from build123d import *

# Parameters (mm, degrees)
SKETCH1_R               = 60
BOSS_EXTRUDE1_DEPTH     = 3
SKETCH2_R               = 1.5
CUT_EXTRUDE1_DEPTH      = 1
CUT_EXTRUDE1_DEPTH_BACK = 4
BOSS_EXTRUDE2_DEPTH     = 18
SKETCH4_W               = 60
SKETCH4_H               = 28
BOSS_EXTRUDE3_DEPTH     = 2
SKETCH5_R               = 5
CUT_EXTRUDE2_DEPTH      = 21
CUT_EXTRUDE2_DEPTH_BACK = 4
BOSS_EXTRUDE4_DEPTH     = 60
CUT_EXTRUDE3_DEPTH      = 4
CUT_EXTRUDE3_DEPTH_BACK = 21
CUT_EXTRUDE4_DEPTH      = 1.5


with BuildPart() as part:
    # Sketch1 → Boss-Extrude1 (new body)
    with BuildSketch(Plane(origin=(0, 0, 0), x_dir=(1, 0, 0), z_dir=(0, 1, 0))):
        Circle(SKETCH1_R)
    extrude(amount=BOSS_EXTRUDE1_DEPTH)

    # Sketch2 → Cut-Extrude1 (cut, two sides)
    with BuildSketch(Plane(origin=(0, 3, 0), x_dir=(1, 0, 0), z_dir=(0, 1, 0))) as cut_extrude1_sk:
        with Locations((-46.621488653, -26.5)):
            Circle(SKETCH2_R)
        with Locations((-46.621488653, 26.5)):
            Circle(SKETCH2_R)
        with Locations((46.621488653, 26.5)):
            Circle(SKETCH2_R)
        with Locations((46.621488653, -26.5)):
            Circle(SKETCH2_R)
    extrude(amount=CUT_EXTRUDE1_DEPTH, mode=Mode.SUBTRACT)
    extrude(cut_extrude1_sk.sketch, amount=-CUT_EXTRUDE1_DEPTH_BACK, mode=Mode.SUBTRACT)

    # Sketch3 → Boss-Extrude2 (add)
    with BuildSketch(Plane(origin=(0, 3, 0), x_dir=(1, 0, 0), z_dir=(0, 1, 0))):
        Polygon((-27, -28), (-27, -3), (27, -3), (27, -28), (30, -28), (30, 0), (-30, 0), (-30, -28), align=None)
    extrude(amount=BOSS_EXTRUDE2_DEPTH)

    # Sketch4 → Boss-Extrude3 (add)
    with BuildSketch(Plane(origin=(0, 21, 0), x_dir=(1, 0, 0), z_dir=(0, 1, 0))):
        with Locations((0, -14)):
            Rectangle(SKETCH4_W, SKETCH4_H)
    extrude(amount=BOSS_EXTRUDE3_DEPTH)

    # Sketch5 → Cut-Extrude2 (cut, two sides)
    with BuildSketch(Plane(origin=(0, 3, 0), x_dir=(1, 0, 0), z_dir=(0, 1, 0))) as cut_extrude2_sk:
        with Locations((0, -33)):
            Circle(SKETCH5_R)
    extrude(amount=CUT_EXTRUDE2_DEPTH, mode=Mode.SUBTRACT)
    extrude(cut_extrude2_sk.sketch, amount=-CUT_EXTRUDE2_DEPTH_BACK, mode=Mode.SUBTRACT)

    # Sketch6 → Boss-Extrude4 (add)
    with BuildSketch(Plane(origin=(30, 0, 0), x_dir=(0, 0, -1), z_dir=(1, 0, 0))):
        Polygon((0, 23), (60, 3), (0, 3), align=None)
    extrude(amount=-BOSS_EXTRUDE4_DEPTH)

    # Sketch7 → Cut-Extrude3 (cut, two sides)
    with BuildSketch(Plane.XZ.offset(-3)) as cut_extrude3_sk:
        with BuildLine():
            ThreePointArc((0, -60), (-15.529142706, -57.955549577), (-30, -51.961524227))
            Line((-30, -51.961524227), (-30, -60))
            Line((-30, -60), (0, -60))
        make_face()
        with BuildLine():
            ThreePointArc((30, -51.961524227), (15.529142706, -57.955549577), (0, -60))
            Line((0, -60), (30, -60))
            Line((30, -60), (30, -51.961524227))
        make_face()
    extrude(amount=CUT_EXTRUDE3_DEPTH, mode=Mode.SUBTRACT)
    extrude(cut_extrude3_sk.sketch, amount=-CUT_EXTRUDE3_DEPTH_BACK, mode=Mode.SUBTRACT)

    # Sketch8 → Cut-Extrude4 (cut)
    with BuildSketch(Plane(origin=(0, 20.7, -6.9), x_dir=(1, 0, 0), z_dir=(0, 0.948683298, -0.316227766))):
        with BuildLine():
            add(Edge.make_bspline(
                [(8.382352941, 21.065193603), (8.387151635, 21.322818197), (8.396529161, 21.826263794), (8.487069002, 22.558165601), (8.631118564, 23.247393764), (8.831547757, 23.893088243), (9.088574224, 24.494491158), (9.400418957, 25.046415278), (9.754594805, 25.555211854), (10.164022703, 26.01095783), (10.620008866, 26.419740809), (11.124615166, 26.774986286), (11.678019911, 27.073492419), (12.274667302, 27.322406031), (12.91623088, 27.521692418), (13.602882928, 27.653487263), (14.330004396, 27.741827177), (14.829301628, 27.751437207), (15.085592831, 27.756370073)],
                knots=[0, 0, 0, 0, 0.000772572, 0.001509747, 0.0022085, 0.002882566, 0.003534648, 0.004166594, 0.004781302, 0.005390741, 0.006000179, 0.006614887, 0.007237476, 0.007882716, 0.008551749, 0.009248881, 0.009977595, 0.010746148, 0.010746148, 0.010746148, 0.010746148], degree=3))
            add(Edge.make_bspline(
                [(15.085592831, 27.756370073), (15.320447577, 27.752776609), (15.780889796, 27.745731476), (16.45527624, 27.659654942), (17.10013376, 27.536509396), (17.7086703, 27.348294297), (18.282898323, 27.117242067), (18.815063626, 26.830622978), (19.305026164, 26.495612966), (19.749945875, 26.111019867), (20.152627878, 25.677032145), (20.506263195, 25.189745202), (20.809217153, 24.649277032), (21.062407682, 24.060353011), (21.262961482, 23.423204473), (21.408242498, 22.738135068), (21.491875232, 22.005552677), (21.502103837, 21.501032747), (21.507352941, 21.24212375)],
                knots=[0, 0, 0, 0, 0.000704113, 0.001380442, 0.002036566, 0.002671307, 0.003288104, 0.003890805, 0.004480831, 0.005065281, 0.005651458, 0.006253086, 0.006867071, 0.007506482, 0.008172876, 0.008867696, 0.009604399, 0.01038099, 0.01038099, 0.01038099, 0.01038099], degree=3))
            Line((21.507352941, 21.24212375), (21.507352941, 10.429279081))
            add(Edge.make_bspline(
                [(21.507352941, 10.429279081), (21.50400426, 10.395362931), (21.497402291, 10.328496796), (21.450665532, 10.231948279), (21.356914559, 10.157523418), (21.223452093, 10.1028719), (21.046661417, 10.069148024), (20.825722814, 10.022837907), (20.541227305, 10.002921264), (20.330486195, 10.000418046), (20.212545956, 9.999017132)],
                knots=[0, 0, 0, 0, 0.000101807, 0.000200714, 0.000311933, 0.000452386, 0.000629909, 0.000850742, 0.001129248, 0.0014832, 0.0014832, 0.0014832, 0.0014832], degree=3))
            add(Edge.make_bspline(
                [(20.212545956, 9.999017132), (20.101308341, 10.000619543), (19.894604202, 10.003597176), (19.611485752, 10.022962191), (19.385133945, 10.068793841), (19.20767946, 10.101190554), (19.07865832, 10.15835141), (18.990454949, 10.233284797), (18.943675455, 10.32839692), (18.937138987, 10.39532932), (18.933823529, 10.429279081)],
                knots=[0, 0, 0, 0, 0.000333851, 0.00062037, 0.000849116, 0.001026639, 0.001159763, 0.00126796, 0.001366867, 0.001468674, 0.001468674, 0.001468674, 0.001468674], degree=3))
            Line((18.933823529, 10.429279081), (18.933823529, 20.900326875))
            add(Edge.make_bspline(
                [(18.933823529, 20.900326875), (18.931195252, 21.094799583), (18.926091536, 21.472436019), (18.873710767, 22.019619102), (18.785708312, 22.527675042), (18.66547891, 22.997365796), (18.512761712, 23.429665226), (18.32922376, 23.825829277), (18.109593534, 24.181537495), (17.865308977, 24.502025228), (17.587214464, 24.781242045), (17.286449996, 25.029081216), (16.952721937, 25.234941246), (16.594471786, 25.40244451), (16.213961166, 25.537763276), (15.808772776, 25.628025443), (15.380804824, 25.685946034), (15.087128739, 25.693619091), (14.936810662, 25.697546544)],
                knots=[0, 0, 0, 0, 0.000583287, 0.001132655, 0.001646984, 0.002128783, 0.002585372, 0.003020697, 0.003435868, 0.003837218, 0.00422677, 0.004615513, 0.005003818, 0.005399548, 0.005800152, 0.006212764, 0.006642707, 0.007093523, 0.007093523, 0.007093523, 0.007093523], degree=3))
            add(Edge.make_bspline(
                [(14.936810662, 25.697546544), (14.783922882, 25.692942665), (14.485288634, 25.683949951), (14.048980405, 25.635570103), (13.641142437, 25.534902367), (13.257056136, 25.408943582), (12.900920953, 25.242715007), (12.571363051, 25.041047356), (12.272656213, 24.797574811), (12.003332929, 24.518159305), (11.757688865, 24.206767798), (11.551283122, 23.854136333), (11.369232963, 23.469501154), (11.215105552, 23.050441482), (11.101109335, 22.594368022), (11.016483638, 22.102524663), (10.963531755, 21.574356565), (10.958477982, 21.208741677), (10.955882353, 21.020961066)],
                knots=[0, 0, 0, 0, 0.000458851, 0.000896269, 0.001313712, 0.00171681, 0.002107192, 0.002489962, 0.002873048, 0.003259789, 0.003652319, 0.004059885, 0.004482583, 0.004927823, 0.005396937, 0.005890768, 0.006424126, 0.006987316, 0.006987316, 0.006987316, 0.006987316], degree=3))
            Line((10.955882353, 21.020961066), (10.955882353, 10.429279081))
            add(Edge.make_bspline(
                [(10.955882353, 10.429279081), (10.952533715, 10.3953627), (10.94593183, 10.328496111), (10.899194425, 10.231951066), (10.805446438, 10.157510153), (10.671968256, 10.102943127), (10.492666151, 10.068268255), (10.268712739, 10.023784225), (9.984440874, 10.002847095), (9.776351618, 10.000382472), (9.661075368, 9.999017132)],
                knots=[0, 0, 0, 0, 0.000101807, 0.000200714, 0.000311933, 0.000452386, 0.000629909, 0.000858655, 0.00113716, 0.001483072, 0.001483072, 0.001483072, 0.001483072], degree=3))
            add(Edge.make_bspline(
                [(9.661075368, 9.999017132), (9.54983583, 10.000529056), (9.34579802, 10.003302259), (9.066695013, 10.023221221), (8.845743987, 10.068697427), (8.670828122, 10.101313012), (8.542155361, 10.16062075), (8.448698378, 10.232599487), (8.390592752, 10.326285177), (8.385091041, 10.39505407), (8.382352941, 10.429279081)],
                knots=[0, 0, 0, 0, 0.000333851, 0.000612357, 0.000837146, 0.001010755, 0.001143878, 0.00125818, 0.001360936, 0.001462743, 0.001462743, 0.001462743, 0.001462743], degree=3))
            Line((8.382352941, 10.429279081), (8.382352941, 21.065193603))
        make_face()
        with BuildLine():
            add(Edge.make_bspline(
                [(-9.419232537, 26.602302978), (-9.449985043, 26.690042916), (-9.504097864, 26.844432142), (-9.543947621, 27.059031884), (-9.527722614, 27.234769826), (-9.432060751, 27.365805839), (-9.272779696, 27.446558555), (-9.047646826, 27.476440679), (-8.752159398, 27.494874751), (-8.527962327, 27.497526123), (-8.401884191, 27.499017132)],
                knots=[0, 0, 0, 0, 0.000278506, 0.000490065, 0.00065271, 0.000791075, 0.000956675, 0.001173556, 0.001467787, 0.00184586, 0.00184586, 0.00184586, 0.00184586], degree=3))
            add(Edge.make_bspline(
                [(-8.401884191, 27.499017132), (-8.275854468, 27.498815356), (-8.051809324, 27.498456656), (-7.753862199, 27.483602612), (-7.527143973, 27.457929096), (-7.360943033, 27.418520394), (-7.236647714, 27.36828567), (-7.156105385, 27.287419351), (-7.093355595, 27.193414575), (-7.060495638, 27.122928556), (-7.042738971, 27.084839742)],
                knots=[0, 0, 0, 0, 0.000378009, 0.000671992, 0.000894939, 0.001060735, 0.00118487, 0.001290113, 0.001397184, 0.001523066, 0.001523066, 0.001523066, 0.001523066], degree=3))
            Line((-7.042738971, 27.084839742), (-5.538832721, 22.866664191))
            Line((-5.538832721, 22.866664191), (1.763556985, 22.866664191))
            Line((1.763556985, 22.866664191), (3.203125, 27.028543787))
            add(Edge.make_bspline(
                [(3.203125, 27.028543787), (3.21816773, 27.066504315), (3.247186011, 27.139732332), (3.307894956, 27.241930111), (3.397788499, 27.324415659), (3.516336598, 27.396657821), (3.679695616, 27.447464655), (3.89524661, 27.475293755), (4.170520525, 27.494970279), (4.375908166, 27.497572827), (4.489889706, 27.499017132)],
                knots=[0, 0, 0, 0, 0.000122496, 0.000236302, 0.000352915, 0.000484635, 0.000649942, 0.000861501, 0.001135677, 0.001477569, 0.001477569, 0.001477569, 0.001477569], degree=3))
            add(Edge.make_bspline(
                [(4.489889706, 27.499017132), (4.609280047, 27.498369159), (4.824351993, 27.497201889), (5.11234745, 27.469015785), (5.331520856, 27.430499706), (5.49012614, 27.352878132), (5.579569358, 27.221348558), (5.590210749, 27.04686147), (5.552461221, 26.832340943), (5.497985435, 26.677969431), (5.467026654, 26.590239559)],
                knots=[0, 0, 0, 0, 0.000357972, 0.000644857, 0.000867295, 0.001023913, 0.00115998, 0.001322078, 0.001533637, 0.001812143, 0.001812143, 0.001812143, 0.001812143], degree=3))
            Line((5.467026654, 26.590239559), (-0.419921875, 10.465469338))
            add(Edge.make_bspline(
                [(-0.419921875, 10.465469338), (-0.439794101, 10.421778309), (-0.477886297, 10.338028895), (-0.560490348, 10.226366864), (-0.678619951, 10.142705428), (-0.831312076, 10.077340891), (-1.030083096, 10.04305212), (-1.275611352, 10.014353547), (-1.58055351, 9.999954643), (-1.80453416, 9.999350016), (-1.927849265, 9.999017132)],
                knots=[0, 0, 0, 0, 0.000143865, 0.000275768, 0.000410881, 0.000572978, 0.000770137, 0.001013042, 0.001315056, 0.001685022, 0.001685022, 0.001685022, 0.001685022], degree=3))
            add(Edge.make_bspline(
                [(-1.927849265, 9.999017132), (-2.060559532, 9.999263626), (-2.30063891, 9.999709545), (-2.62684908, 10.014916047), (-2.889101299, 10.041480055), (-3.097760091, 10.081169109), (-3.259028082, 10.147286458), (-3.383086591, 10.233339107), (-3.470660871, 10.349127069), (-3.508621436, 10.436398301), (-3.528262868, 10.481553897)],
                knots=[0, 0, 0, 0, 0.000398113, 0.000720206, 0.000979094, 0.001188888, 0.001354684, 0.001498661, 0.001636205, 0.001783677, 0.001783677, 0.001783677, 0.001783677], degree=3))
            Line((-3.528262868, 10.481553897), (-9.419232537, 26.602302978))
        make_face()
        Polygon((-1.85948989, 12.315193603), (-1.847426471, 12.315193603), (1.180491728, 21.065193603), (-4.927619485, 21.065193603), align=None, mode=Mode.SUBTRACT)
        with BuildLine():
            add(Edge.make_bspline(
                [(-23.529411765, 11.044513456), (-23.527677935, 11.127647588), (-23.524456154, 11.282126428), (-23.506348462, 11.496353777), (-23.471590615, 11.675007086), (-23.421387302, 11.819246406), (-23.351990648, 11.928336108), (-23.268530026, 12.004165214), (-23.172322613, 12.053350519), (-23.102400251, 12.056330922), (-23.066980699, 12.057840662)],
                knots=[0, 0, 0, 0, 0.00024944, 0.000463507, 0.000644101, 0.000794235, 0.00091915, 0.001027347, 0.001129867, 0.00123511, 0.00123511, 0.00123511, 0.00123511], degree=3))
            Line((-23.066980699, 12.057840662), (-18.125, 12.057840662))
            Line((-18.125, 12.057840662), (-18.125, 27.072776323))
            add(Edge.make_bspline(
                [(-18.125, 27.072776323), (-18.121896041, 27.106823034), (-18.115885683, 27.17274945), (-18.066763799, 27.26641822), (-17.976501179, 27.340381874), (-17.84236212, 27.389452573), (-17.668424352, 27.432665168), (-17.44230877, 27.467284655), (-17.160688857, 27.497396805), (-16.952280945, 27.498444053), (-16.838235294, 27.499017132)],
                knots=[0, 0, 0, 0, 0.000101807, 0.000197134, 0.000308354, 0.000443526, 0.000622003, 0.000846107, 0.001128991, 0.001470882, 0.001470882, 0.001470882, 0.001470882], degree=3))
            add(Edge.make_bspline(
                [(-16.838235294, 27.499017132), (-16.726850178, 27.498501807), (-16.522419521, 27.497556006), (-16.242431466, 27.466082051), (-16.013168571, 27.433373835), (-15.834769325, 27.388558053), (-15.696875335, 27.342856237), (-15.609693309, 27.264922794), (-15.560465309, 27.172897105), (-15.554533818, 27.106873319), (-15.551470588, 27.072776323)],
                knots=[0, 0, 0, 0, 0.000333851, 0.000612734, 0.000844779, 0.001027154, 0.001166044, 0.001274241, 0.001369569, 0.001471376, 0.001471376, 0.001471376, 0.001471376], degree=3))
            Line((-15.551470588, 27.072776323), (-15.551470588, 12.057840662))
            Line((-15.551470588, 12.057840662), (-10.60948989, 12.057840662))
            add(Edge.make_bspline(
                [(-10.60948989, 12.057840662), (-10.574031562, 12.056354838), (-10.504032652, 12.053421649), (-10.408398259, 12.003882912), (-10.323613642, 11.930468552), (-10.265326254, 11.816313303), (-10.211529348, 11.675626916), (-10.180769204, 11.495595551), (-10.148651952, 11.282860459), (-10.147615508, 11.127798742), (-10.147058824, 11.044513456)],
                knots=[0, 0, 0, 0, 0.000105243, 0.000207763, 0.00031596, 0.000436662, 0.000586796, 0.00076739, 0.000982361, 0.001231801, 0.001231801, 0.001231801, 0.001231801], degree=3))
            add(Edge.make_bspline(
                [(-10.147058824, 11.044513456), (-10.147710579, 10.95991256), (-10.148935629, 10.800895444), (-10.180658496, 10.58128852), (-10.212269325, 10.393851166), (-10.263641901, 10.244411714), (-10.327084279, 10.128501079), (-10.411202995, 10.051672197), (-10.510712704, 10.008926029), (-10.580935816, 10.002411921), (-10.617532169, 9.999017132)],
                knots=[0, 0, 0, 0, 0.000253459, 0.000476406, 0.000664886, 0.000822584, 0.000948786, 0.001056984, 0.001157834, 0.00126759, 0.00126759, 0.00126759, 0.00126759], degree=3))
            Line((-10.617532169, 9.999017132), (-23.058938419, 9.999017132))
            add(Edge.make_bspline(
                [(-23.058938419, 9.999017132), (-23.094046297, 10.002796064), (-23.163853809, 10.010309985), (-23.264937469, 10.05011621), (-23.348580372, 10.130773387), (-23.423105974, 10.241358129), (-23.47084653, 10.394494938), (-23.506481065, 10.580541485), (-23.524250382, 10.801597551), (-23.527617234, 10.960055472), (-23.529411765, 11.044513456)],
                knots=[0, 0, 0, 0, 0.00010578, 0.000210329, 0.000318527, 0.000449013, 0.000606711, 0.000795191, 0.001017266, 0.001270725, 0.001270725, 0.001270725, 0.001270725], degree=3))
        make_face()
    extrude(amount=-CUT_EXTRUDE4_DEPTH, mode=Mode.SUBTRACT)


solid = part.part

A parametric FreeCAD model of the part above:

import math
import FreeCAD as App
import Part
import Sketcher
Q = App.Units.Quantity


def add_polygon(sketch, points):
    """Adds a closed chain of lines whose ends are joined by coincident constraints."""
    first, n = sketch.GeometryCount, len(points)
    for a, b in zip(points, points[1:] + points[:1]):
        sketch.addGeometry(Part.LineSegment(App.Vector(*a, 0), App.Vector(*b, 0)), False)
    for i in range(n):
        sketch.addConstraint(Sketcher.Constraint("Coincident", first + i, 2, first + (i + 1) % n, 1))

doc = App.newDocument("Part")
body = doc.addObject("PartDesign::Body", "Body")

sketch1 = doc.addObject("Sketcher::SketchObject", "Sketch")
body.addObject(sketch1)
sketch1.AttachmentSupport = (doc.XZ_Plane, [""])
sketch1.MapMode = "FlatFace"
sketch1.addGeometry(Part.Circle(App.Vector(0, 0, 0), App.Vector(0, 0, 1), 60), False)
sketch1.addConstraint([
    Sketcher.Constraint("Coincident", 0, 3, -1, 1),
    Sketcher.Constraint("Diameter", 0, Q("120 mm")),
])
pad1 = doc.addObject("PartDesign::Pad", "Pad")
body.addObject(pad1)
pad1.Profile = sketch1
pad1.Length = 3
pad1.Reversed = True

sketch2 = doc.addObject("Sketcher::SketchObject", "Sketch001")
body.addObject(sketch2)
sketch2.AttachmentSupport = (doc.XZ_Plane, [""])
sketch2.MapMode = "FlatFace"
sketch2.AttachmentOffset = App.Placement(App.Vector(0, 0, -3), App.Rotation())
sketch2.addGeometry([
    Part.Circle(App.Vector(-46.6, 26.5, 0), App.Vector(0, 0, 1), 1.5),
    Part.Circle(App.Vector(-46.6, -26.5, 0), App.Vector(0, 0, 1), 1.5),
    Part.Circle(App.Vector(46.6, -26.5, 0), App.Vector(0, 0, 1), 1.5),
    Part.Circle(App.Vector(46.6, 26.5, 0), App.Vector(0, 0, 1), 1.5),
], False)
sketch2.addConstraint([
    Sketcher.Constraint("Equal", 0, 1),
    Sketcher.Constraint("Equal", 1, 2),
    Sketcher.Constraint("Equal", 2, 3),
    Sketcher.Constraint("Symmetric", 0, 3, 2, 3, -1, 1),
    Sketcher.Constraint("Symmetric", 1, 3, 3, 3, -1, 1),
    Sketcher.Constraint("Symmetric", 1, 3, 2, 3, -2),
    Sketcher.Constraint("Diameter", 0, Q("3 mm")),
    Sketcher.Constraint("DistanceY", 1, 3, 0, 3, Q("53 mm")),
    Sketcher.Constraint("DistanceX", 0, 3, -1, 1, Q("46.621489 mm")),
])
pocket1 = doc.addObject("PartDesign::Pocket", "Pocket")
body.addObject(pocket1)
pocket1.Profile = sketch2
pocket1.Type = "ThroughAll"
pocket1.Midplane = True

sketch3 = doc.addObject("Sketcher::SketchObject", "Sketch002")
body.addObject(sketch3)
sketch3.AttachmentSupport = (doc.XZ_Plane, [""])
sketch3.MapMode = "FlatFace"
sketch3.AttachmentOffset = App.Placement(App.Vector(0, 0, -3), App.Rotation())
add_polygon(sketch3, [(-27, 28), (-27, 3), (27, 3), (27, 28), (30, 28), (30, 0), (-30, 0), (-30, 28)])
sketch3.addConstraint([
    Sketcher.Constraint("Vertical", 0),
    Sketcher.Constraint("Horizontal", 1),
    Sketcher.Constraint("Vertical", 2),
    Sketcher.Constraint("Horizontal", 3),
    Sketcher.Constraint("Vertical", 4),
    Sketcher.Constraint("Horizontal", 5),
    Sketcher.Constraint("Vertical", 6),
    Sketcher.Constraint("Horizontal", 7),
    Sketcher.Constraint("Symmetric", 4, 2, 5, 2, -1, 1),
    Sketcher.Constraint("Symmetric", 2, 2, 7, 2, -2),
    Sketcher.Constraint("DistanceX", 1, 1, 1, 2, Q("54 mm")),
    Sketcher.Constraint("DistanceX", 3, 1, 3, 2, Q("3 mm")),
    Sketcher.Constraint("DistanceY", 0, 2, 0, 1, Q("25 mm")),
    Sketcher.Constraint("DistanceY", 4, 2, 4, 1, Q("28 mm")),
])
pad2 = doc.addObject("PartDesign::Pad", "Pad001")
body.addObject(pad2)
pad2.Profile = sketch3
pad2.Length = 18
pad2.Reversed = True

sketch4 = doc.addObject("Sketcher::SketchObject", "Sketch003")
body.addObject(sketch4)
sketch4.AttachmentSupport = (doc.XZ_Plane, [""])
sketch4.MapMode = "FlatFace"
sketch4.AttachmentOffset = App.Placement(App.Vector(0, 0, -21), App.Rotation())
add_polygon(sketch4, [(-30, 0), (-30, 28), (30, 28), (30, 0)])
sketch4.addConstraint([
    Sketcher.Constraint("Vertical", 0),
    Sketcher.Constraint("Horizontal", 1),
    Sketcher.Constraint("Vertical", 2),
    Sketcher.Constraint("Horizontal", 3),
    Sketcher.Constraint("Symmetric", 2, 2, 3, 2, -1, 1),
    Sketcher.Constraint("DistanceX", 1, 1, 1, 2, Q("60 mm")),
    Sketcher.Constraint("DistanceY", 0, 1, 0, 2, Q("28 mm")),
])
pad3 = doc.addObject("PartDesign::Pad", "Pad002")
body.addObject(pad3)
pad3.Profile = sketch4
pad3.Length = 2
pad3.Reversed = True

sketch5 = doc.addObject("Sketcher::SketchObject", "Sketch004")
body.addObject(sketch5)
sketch5.AttachmentSupport = (doc.XZ_Plane, [""])
sketch5.MapMode = "FlatFace"
sketch5.AttachmentOffset = App.Placement(App.Vector(0, 0, -3), App.Rotation())
sketch5.addGeometry(Part.Circle(App.Vector(0, 33, 0), App.Vector(0, 0, 1), 5), False)
sketch5.addConstraint([
    Sketcher.Constraint("PointOnObject", 0, 3, -2),
    Sketcher.Constraint("Diameter", 0, Q("10 mm")),
    Sketcher.Constraint("DistanceY", -1, 1, 0, 3, Q("33 mm")),
])
pocket2 = doc.addObject("PartDesign::Pocket", "Pocket001")
body.addObject(pocket2)
pocket2.Profile = sketch5
pocket2.Type = "ThroughAll"
pocket2.Midplane = True

sketch6 = doc.addObject("Sketcher::SketchObject", "Sketch005")
body.addObject(sketch6)
sketch6.AttachmentSupport = (doc.YZ_Plane, [""])
sketch6.MapMode = "FlatFace"
sketch6.AttachmentOffset = App.Placement(App.Vector(0, 0, 30), App.Rotation())
add_polygon(sketch6, [(3, -60), (23, 0), (3, 0)])
sketch6.addConstraint([
    Sketcher.Constraint("Horizontal", 1),
    Sketcher.Constraint("Vertical", 2),
    Sketcher.Constraint("PointOnObject", 0, 2, -1),
    Sketcher.Constraint("DistanceX", 1, 2, 1, 1, Q("20 mm")),
    Sketcher.Constraint("DistanceY", 2, 2, 2, 1, Q("60 mm")),
    Sketcher.Constraint("DistanceX", -1, 1, 0, 2, Q("23 mm")),
])
pad4 = doc.addObject("PartDesign::Pad", "Pad003")
body.addObject(pad4)
pad4.Profile = sketch6
pad4.Length = 60
pad4.Reversed = True

sketch7 = doc.addObject("Sketcher::SketchObject", "Sketch006")
body.addObject(sketch7)
sketch7.AttachmentSupport = (doc.XZ_Plane, [""])
sketch7.MapMode = "FlatFace"
sketch7.AttachmentOffset = App.Placement(App.Vector(0, 0, -3), App.Rotation())
sketch7.addGeometry([
    Part.ArcOfCircle(Part.Circle(App.Vector(0, 0, 0), App.Vector(0, 0, 1), 60), math.radians(-120), math.radians(-90)),
    Part.LineSegment(App.Vector(-30, -52, 0), App.Vector(-30, -60, 0)),
    Part.LineSegment(App.Vector(-30, -60, 0), App.Vector(0, -60, 0)),
    Part.ArcOfCircle(Part.Circle(App.Vector(0, 0, 0), App.Vector(0, 0, 1), 60), math.radians(-90), math.radians(-60)),
    Part.LineSegment(App.Vector(0, -60, 0), App.Vector(30, -60, 0)),
    Part.LineSegment(App.Vector(30, -60, 0), App.Vector(30, -52, 0)),
], False)
sketch7.addConstraint([
    Sketcher.Constraint("Coincident", 0, 1, 1, 1),
    Sketcher.Constraint("Coincident", 1, 2, 2, 1),
    Sketcher.Constraint("Tangent", 2, 2, 0, 2),
    Sketcher.Constraint("Tangent", 3, 1, 4, 1),
    Sketcher.Constraint("Coincident", 4, 2, 5, 1),
    Sketcher.Constraint("Coincident", 5, 2, 3, 2),
    Sketcher.Constraint("Vertical", 1),
    Sketcher.Constraint("Horizontal", 2),
    Sketcher.Constraint("Horizontal", 4),
    Sketcher.Constraint("Vertical", 5),
    Sketcher.Constraint("Coincident", 0, 3, -1, 1),
    Sketcher.Constraint("Coincident", 3, 3, -1, 1),
    Sketcher.Constraint("Equal", 0, 3),
    Sketcher.Constraint("Horizontal", 0, 1, 5, 2),
    Sketcher.Constraint("Radius", 0, Q("60 mm")),
    Sketcher.Constraint("DistanceX", 2, 1, 2, 2, Q("30 mm")),
])
pocket3 = doc.addObject("PartDesign::Pocket", "Pocket002")
body.addObject(pocket3)
pocket3.Profile = sketch7
pocket3.Type = "ThroughAll"
pocket3.Midplane = True

sketch8 = doc.addObject("Sketcher::SketchObject", "Sketch007")
body.addObject(sketch8)
sketch8.Placement = App.Placement(App.Vector(0, 20.7, -6.9), App.Rotation(App.Vector(1, 0, 0), App.Vector(0, -0.316227766, -0.948683298), App.Vector(0, 0.948683298, -0.316227766), "ZXY"))
sketch8.addGeometry(Part.BSplineCurve([App.Vector(8.382353, 21.065194, 0), App.Vector(8.387152, 21.322818, 0), App.Vector(8.396529, 21.826264, 0), App.Vector(8.487069, 22.558166, 0), App.Vector(8.631119, 23.247394, 0), App.Vector(8.831548, 23.893088, 0), App.Vector(9.088574, 24.494491, 0), App.Vector(9.400419, 25.046415, 0), App.Vector(9.754595, 25.555212, 0), App.Vector(10.164023, 26.010958, 0), App.Vector(10.620009, 26.419741, 0), App.Vector(11.124615, 26.774986, 0), App.Vector(11.67802, 27.073492, 0), App.Vector(12.274667, 27.322406, 0), App.Vector(12.916231, 27.521692, 0), App.Vector(13.602883, 27.653487, 0), App.Vector(14.330004, 27.741827, 0), App.Vector(14.829302, 27.751437, 0), App.Vector(15.085593, 27.75637, 0)], [4, 1, 1, 1, 1, 1, 1, 1, 1, 1, 1, 1, 1, 1, 1, 1, 4], [0, 0.000772572, 0.001509747, 0.0022085, 0.002882566, 0.003534648, 0.004166594, 0.004781302, 0.005390741, 0.006000179, 0.006614887, 0.007237476, 0.007882716, 0.008551749, 0.009248881, 0.009977595, 0.010746148], False, 3, [1, 1, 1, 1, 1, 1, 1, 1, 1, 1, 1, 1, 1, 1, 1, 1, 1, 1, 1], False), False)
sketch8.addGeometry(Part.LineSegment(App.Vector(8.382353, 21.065194, 0), App.Vector(8.382353, 10.429279, 0)), False)
sketch8.addGeometry(Part.BSplineCurve([App.Vector(9.661075, 9.999017, 0), App.Vector(9.549836, 10.000529, 0), App.Vector(9.345798, 10.003302, 0), App.Vector(9.066695, 10.023221, 0), App.Vector(8.845744, 10.068697, 0), App.Vector(8.670828, 10.101313, 0), App.Vector(8.542155, 10.160621, 0), App.Vector(8.448698, 10.232599, 0), App.Vector(8.390593, 10.326285, 0), App.Vector(8.385091, 10.395054, 0), App.Vector(8.382353, 10.429279, 0)], [4, 1, 1, 1, 1, 1, 1, 1, 4], [0, 0.000333851, 0.000612357, 0.000837146, 0.001010755, 0.001143878, 0.00125818, 0.001360936, 0.001462743], False, 3, [1, 1, 1, 1, 1, 1, 1, 1, 1, 1, 1], False), False)
sketch8.addGeometry(Part.BSplineCurve([App.Vector(10.955882, 10.429279, 0), App.Vector(10.952534, 10.395363, 0), App.Vector(10.945932, 10.328496, 0), App.Vector(10.899194, 10.231951, 0), App.Vector(10.805446, 10.15751, 0), App.Vector(10.671968, 10.102943, 0), App.Vector(10.492666, 10.068268, 0), App.Vector(10.268713, 10.023784, 0), App.Vector(9.984441, 10.002847, 0), App.Vector(9.776352, 10.000382, 0), App.Vector(9.661075, 9.999017, 0)], [4, 1, 1, 1, 1, 1, 1, 1, 4], [0, 0.000101807, 0.000200714, 0.000311933, 0.000452386, 0.000629909, 0.000858655, 0.00113716, 0.001483072], False, 3, [1, 1, 1, 1, 1, 1, 1, 1, 1, 1, 1], False), False)
sketch8.addGeometry(Part.LineSegment(App.Vector(10.955882, 10.429279, 0), App.Vector(10.955882, 21.020961, 0)), False)
sketch8.addGeometry(Part.BSplineCurve([App.Vector(14.936811, 25.697547, 0), App.Vector(14.783923, 25.692943, 0), App.Vector(14.485289, 25.68395, 0), App.Vector(14.04898, 25.63557, 0), App.Vector(13.641142, 25.534902, 0), App.Vector(13.257056, 25.408944, 0), App.Vector(12.900921, 25.242715, 0), App.Vector(12.571363, 25.041047, 0), App.Vector(12.272656, 24.797575, 0), App.Vector(12.003333, 24.518159, 0), App.Vector(11.757689, 24.206768, 0), App.Vector(11.551283, 23.854136, 0), App.Vector(11.369233, 23.469501, 0), App.Vector(11.215106, 23.050441, 0), App.Vector(11.101109, 22.594368, 0), App.Vector(11.016484, 22.102525, 0), App.Vector(10.963532, 21.574357, 0), App.Vector(10.958478, 21.208742, 0), App.Vector(10.955882, 21.020961, 0)], [4, 1, 1, 1, 1, 1, 1, 1, 1, 1, 1, 1, 1, 1, 1, 1, 4], [0, 0.000458851, 0.000896269, 0.001313712, 0.00171681, 0.002107192, 0.002489962, 0.002873048, 0.003259789, 0.003652319, 0.004059885, 0.004482583, 0.004927823, 0.005396937, 0.005890768, 0.006424126, 0.006987316], False, 3, [1, 1, 1, 1, 1, 1, 1, 1, 1, 1, 1, 1, 1, 1, 1, 1, 1, 1, 1], False), False)
sketch8.addGeometry(Part.BSplineCurve([App.Vector(18.933824, 20.900327, 0), App.Vector(18.931195, 21.0948, 0), App.Vector(18.926092, 21.472436, 0), App.Vector(18.873711, 22.019619, 0), App.Vector(18.785708, 22.527675, 0), App.Vector(18.665479, 22.997366, 0), App.Vector(18.512762, 23.429665, 0), App.Vector(18.329224, 23.825829, 0), App.Vector(18.109594, 24.181537, 0), App.Vector(17.865309, 24.502025, 0), App.Vector(17.587214, 24.781242, 0), App.Vector(17.28645, 25.029081, 0), App.Vector(16.952722, 25.234941, 0), App.Vector(16.594472, 25.402445, 0), App.Vector(16.213961, 25.537763, 0), App.Vector(15.808773, 25.628025, 0), App.Vector(15.380805, 25.685946, 0), App.Vector(15.087129, 25.693619, 0), App.Vector(14.936811, 25.697547, 0)], [4, 1, 1, 1, 1, 1, 1, 1, 1, 1, 1, 1, 1, 1, 1, 1, 4], [0, 0.000583287, 0.001132655, 0.001646984, 0.002128783, 0.002585372, 0.003020697, 0.003435868, 0.003837218, 0.00422677, 0.004615513, 0.005003818, 0.005399548, 0.005800152, 0.006212764, 0.006642707, 0.007093523], False, 3, [1, 1, 1, 1, 1, 1, 1, 1, 1, 1, 1, 1, 1, 1, 1, 1, 1, 1, 1], False), False)
sketch8.addGeometry(Part.LineSegment(App.Vector(18.933824, 20.900327, 0), App.Vector(18.933824, 10.429279, 0)), False)
sketch8.addGeometry(Part.BSplineCurve([App.Vector(20.212546, 9.999017, 0), App.Vector(20.101308, 10.00062, 0), App.Vector(19.894604, 10.003597, 0), App.Vector(19.611486, 10.022962, 0), App.Vector(19.385134, 10.068794, 0), App.Vector(19.207679, 10.101191, 0), App.Vector(19.078658, 10.158351, 0), App.Vector(18.990455, 10.233285, 0), App.Vector(18.943675, 10.328397, 0), App.Vector(18.937139, 10.395329, 0), App.Vector(18.933824, 10.429279, 0)], [4, 1, 1, 1, 1, 1, 1, 1, 4], [0, 0.000333851, 0.00062037, 0.000849116, 0.001026639, 0.001159763, 0.00126796, 0.001366867, 0.001468674], False, 3, [1, 1, 1, 1, 1, 1, 1, 1, 1, 1, 1], False), False)
sketch8.addGeometry(Part.BSplineCurve([App.Vector(21.507353, 10.429279, 0), App.Vector(21.504004, 10.395363, 0), App.Vector(21.497402, 10.328497, 0), App.Vector(21.450666, 10.231948, 0), App.Vector(21.356915, 10.157523, 0), App.Vector(21.223452, 10.102872, 0), App.Vector(21.046661, 10.069148, 0), App.Vector(20.825723, 10.022838, 0), App.Vector(20.541227, 10.002921, 0), App.Vector(20.330486, 10.000418, 0), App.Vector(20.212546, 9.999017, 0)], [4, 1, 1, 1, 1, 1, 1, 1, 4], [0, 0.000101807, 0.000200714, 0.000311933, 0.000452386, 0.000629909, 0.000850742, 0.001129248, 0.0014832], False, 3, [1, 1, 1, 1, 1, 1, 1, 1, 1, 1, 1], False), False)
sketch8.addGeometry(Part.LineSegment(App.Vector(21.507353, 10.429279, 0), App.Vector(21.507353, 21.242124, 0)), False)
sketch8.addGeometry(Part.BSplineCurve([App.Vector(15.085593, 27.75637, 0), App.Vector(15.320448, 27.752777, 0), App.Vector(15.78089, 27.745731, 0), App.Vector(16.455276, 27.659655, 0), App.Vector(17.100134, 27.536509, 0), App.Vector(17.70867, 27.348294, 0), App.Vector(18.282898, 27.117242, 0), App.Vector(18.815064, 26.830623, 0), App.Vector(19.305026, 26.495613, 0), App.Vector(19.749946, 26.11102, 0), App.Vector(20.152628, 25.677032, 0), App.Vector(20.506263, 25.189745, 0), App.Vector(20.809217, 24.649277, 0), App.Vector(21.062408, 24.060353, 0), App.Vector(21.262961, 23.423204, 0), App.Vector(21.408242, 22.738135, 0), App.Vector(21.491875, 22.005553, 0), App.Vector(21.502104, 21.501033, 0), App.Vector(21.507353, 21.242124, 0)], [4, 1, 1, 1, 1, 1, 1, 1, 1, 1, 1, 1, 1, 1, 1, 1, 4], [0, 0.000704113, 0.001380442, 0.002036566, 0.002671307, 0.003288104, 0.003890805, 0.004480831, 0.005065281, 0.005651458, 0.006253086, 0.006867071, 0.007506482, 0.008172876, 0.008867696, 0.009604399, 0.01038099], False, 3, [1, 1, 1, 1, 1, 1, 1, 1, 1, 1, 1, 1, 1, 1, 1, 1, 1, 1, 1], False), False)
sketch8.addGeometry(Part.BSplineCurve([App.Vector(-9.419233, 26.602303, 0), App.Vector(-9.449985, 26.690043, 0), App.Vector(-9.504098, 26.844432, 0), App.Vector(-9.543948, 27.059032, 0), App.Vector(-9.527723, 27.23477, 0), App.Vector(-9.432061, 27.365806, 0), App.Vector(-9.27278, 27.446559, 0), App.Vector(-9.047647, 27.476441, 0), App.Vector(-8.752159, 27.494875, 0), App.Vector(-8.527962, 27.497526, 0), App.Vector(-8.401884, 27.499017, 0)], [4, 1, 1, 1, 1, 1, 1, 1, 4], [0, 0.000278506, 0.000490065, 0.00065271, 0.000791075, 0.000956675, 0.001173556, 0.001467787, 0.00184586], False, 3, [1, 1, 1, 1, 1, 1, 1, 1, 1, 1, 1], False), False)
sketch8.addGeometry(Part.LineSegment(App.Vector(-9.419233, 26.602303, 0), App.Vector(-3.528263, 10.481554, 0)), False)
sketch8.addGeometry(Part.BSplineCurve([App.Vector(-1.927849, 9.999017, 0), App.Vector(-2.06056, 9.999264, 0), App.Vector(-2.300639, 9.99971, 0), App.Vector(-2.626849, 10.014916, 0), App.Vector(-2.889101, 10.04148, 0), App.Vector(-3.09776, 10.081169, 0), App.Vector(-3.259028, 10.147286, 0), App.Vector(-3.383087, 10.233339, 0), App.Vector(-3.470661, 10.349127, 0), App.Vector(-3.508621, 10.436398, 0), App.Vector(-3.528263, 10.481554, 0)], [4, 1, 1, 1, 1, 1, 1, 1, 4], [0, 0.000398113, 0.000720206, 0.000979094, 0.001188888, 0.001354684, 0.001498661, 0.001636205, 0.001783677], False, 3, [1, 1, 1, 1, 1, 1, 1, 1, 1, 1, 1], False), False)
sketch8.addGeometry(Part.BSplineCurve([App.Vector(-0.419922, 10.465469, 0), App.Vector(-0.439794, 10.421778, 0), App.Vector(-0.477886, 10.338029, 0), App.Vector(-0.56049, 10.226367, 0), App.Vector(-0.67862, 10.142705, 0), App.Vector(-0.831312, 10.077341, 0), App.Vector(-1.030083, 10.043052, 0), App.Vector(-1.275611, 10.014354, 0), App.Vector(-1.580554, 9.999955, 0), App.Vector(-1.804534, 9.99935, 0), App.Vector(-1.927849, 9.999017, 0)], [4, 1, 1, 1, 1, 1, 1, 1, 4], [0, 0.000143865, 0.000275768, 0.000410881, 0.000572978, 0.000770137, 0.001013042, 0.001315056, 0.001685022], False, 3, [1, 1, 1, 1, 1, 1, 1, 1, 1, 1, 1], False), False)
sketch8.addGeometry(Part.LineSegment(App.Vector(-0.419922, 10.465469, 0), App.Vector(5.467027, 26.59024, 0)), False)
sketch8.addGeometry(Part.BSplineCurve([App.Vector(4.48989, 27.499017, 0), App.Vector(4.60928, 27.498369, 0), App.Vector(4.824352, 27.497202, 0), App.Vector(5.112347, 27.469016, 0), App.Vector(5.331521, 27.4305, 0), App.Vector(5.490126, 27.352878, 0), App.Vector(5.579569, 27.221349, 0), App.Vector(5.590211, 27.046861, 0), App.Vector(5.552461, 26.832341, 0), App.Vector(5.497985, 26.677969, 0), App.Vector(5.467027, 26.59024, 0)], [4, 1, 1, 1, 1, 1, 1, 1, 4], [0, 0.000357972, 0.000644857, 0.000867295, 0.001023913, 0.00115998, 0.001322078, 0.001533637, 0.001812143], False, 3, [1, 1, 1, 1, 1, 1, 1, 1, 1, 1, 1], False), False)
sketch8.addGeometry(Part.BSplineCurve([App.Vector(3.203125, 27.028544, 0), App.Vector(3.218168, 27.066504, 0), App.Vector(3.247186, 27.139732, 0), App.Vector(3.307895, 27.24193, 0), App.Vector(3.397788, 27.324416, 0), App.Vector(3.516337, 27.396658, 0), App.Vector(3.679696, 27.447465, 0), App.Vector(3.895247, 27.475294, 0), App.Vector(4.170521, 27.49497, 0), App.Vector(4.375908, 27.497573, 0), App.Vector(4.48989, 27.499017, 0)], [4, 1, 1, 1, 1, 1, 1, 1, 4], [0, 0.000122496, 0.000236302, 0.000352915, 0.000484635, 0.000649942, 0.000861501, 0.001135677, 0.001477569], False, 3, [1, 1, 1, 1, 1, 1, 1, 1, 1, 1, 1], False), False)
sketch8.addGeometry(Part.LineSegment(App.Vector(3.203125, 27.028544, 0), App.Vector(1.763557, 22.866664, 0)), False)
sketch8.addGeometry(Part.LineSegment(App.Vector(1.763557, 22.866664, 0), App.Vector(-5.538833, 22.866664, 0)), False)
sketch8.addGeometry(Part.LineSegment(App.Vector(-5.538833, 22.866664, 0), App.Vector(-7.042739, 27.08484, 0)), False)
sketch8.addGeometry(Part.BSplineCurve([App.Vector(-8.401884, 27.499017, 0), App.Vector(-8.275854, 27.498815, 0), App.Vector(-8.051809, 27.498457, 0), App.Vector(-7.753862, 27.483603, 0), App.Vector(-7.527144, 27.457929, 0), App.Vector(-7.360943, 27.41852, 0), App.Vector(-7.236648, 27.368286, 0), App.Vector(-7.156105, 27.287419, 0), App.Vector(-7.093356, 27.193415, 0), App.Vector(-7.060496, 27.122929, 0), App.Vector(-7.042739, 27.08484, 0)], [4, 1, 1, 1, 1, 1, 1, 1, 4], [0, 0.000378009, 0.000671992, 0.000894939, 0.001060735, 0.00118487, 0.001290113, 0.001397184, 0.001523066], False, 3, [1, 1, 1, 1, 1, 1, 1, 1, 1, 1, 1], False), False)
add_polygon(sketch8, [(-1.85949, 12.315194), (-4.927619, 21.065194), (1.180492, 21.065194), (-1.847426, 12.315194)])
sketch8.addGeometry(Part.BSplineCurve([App.Vector(-23.529412, 11.044513, 0), App.Vector(-23.527678, 11.127648, 0), App.Vector(-23.524456, 11.282126, 0), App.Vector(-23.506348, 11.496354, 0), App.Vector(-23.471591, 11.675007, 0), App.Vector(-23.421387, 11.819246, 0), App.Vector(-23.351991, 11.928336, 0), App.Vector(-23.26853, 12.004165, 0), App.Vector(-23.172323, 12.053351, 0), App.Vector(-23.1024, 12.056331, 0), App.Vector(-23.066981, 12.057841, 0)], [4, 1, 1, 1, 1, 1, 1, 1, 4], [0, 0.00024944, 0.000463507, 0.000644101, 0.000794235, 0.00091915, 0.001027347, 0.001129867, 0.00123511], False, 3, [1, 1, 1, 1, 1, 1, 1, 1, 1, 1, 1], False), False)
sketch8.addGeometry(Part.BSplineCurve([App.Vector(-23.058938, 9.999017, 0), App.Vector(-23.094046, 10.002796, 0), App.Vector(-23.163854, 10.01031, 0), App.Vector(-23.264937, 10.050116, 0), App.Vector(-23.34858, 10.130773, 0), App.Vector(-23.423106, 10.241358, 0), App.Vector(-23.470847, 10.394495, 0), App.Vector(-23.506481, 10.580541, 0), App.Vector(-23.52425, 10.801598, 0), App.Vector(-23.527617, 10.960055, 0), App.Vector(-23.529412, 11.044513, 0)], [4, 1, 1, 1, 1, 1, 1, 1, 4], [0, 0.00010578, 0.000210329, 0.000318527, 0.000449013, 0.000606711, 0.000795191, 0.001017266, 0.001270725], False, 3, [1, 1, 1, 1, 1, 1, 1, 1, 1, 1, 1], False), False)
sketch8.addGeometry(Part.LineSegment(App.Vector(-23.058938, 9.999017, 0), App.Vector(-10.617532, 9.999017, 0)), False)
sketch8.addGeometry(Part.BSplineCurve([App.Vector(-10.147059, 11.044513, 0), App.Vector(-10.147711, 10.959913, 0), App.Vector(-10.148936, 10.800895, 0), App.Vector(-10.180658, 10.581289, 0), App.Vector(-10.212269, 10.393851, 0), App.Vector(-10.263642, 10.244412, 0), App.Vector(-10.327084, 10.128501, 0), App.Vector(-10.411203, 10.051672, 0), App.Vector(-10.510713, 10.008926, 0), App.Vector(-10.580936, 10.002412, 0), App.Vector(-10.617532, 9.999017, 0)], [4, 1, 1, 1, 1, 1, 1, 1, 4], [0, 0.000253459, 0.000476406, 0.000664886, 0.000822584, 0.000948786, 0.001056984, 0.001157834, 0.00126759], False, 3, [1, 1, 1, 1, 1, 1, 1, 1, 1, 1, 1], False), False)
sketch8.addGeometry(Part.BSplineCurve([App.Vector(-10.60949, 12.057841, 0), App.Vector(-10.574032, 12.056355, 0), App.Vector(-10.504033, 12.053422, 0), App.Vector(-10.408398, 12.003883, 0), App.Vector(-10.323614, 11.930469, 0), App.Vector(-10.265326, 11.816313, 0), App.Vector(-10.211529, 11.675627, 0), App.Vector(-10.180769, 11.495596, 0), App.Vector(-10.148652, 11.28286, 0), App.Vector(-10.147616, 11.127799, 0), App.Vector(-10.147059, 11.044513, 0)], [4, 1, 1, 1, 1, 1, 1, 1, 4], [0, 0.000105243, 0.000207763, 0.00031596, 0.000436662, 0.000586796, 0.00076739, 0.000982361, 0.001231801], False, 3, [1, 1, 1, 1, 1, 1, 1, 1, 1, 1, 1], False), False)
sketch8.addGeometry(Part.LineSegment(App.Vector(-10.60949, 12.057841, 0), App.Vector(-15.551471, 12.057841, 0)), False)
sketch8.addGeometry(Part.LineSegment(App.Vector(-15.551471, 12.057841, 0), App.Vector(-15.551471, 27.072776, 0)), False)
sketch8.addGeometry(Part.BSplineCurve([App.Vector(-16.838235, 27.499017, 0), App.Vector(-16.72685, 27.498502, 0), App.Vector(-16.52242, 27.497556, 0), App.Vector(-16.242431, 27.466082, 0), App.Vector(-16.013169, 27.433374, 0), App.Vector(-15.834769, 27.388558, 0), App.Vector(-15.696875, 27.342856, 0), App.Vector(-15.609693, 27.264923, 0), App.Vector(-15.560465, 27.172897, 0), App.Vector(-15.554534, 27.106873, 0), App.Vector(-15.551471, 27.072776, 0)], [4, 1, 1, 1, 1, 1, 1, 1, 4], [0, 0.000333851, 0.000612734, 0.000844779, 0.001027154, 0.001166044, 0.001274241, 0.001369569, 0.001471376], False, 3, [1, 1, 1, 1, 1, 1, 1, 1, 1, 1, 1], False), False)
sketch8.addGeometry(Part.BSplineCurve([App.Vector(-18.125, 27.072776, 0), App.Vector(-18.121896, 27.106823, 0), App.Vector(-18.115886, 27.172749, 0), App.Vector(-18.066764, 27.266418, 0), App.Vector(-17.976501, 27.340382, 0), App.Vector(-17.842362, 27.389453, 0), App.Vector(-17.668424, 27.432665, 0), App.Vector(-17.442309, 27.467285, 0), App.Vector(-17.160689, 27.497397, 0), App.Vector(-16.952281, 27.498444, 0), App.Vector(-16.838235, 27.499017, 0)], [4, 1, 1, 1, 1, 1, 1, 1, 4], [0, 0.000101807, 0.000197134, 0.000308354, 0.000443526, 0.000622003, 0.000846107, 0.001128991, 0.001470882], False, 3, [1, 1, 1, 1, 1, 1, 1, 1, 1, 1, 1], False), False)
sketch8.addGeometry(Part.LineSegment(App.Vector(-18.125, 27.072776, 0), App.Vector(-18.125, 12.057841, 0)), False)
sketch8.addGeometry(Part.LineSegment(App.Vector(-18.125, 12.057841, 0), App.Vector(-23.066981, 12.057841, 0)), False)
sketch8.addConstraint([
    Sketcher.Constraint("Block", 0),
    Sketcher.Constraint("Block", 2),
    Sketcher.Constraint("Block", 3),
    Sketcher.Constraint("Block", 5),
    Sketcher.Constraint("Block", 6),
    Sketcher.Constraint("Block", 8),
    Sketcher.Constraint("Block", 9),
    Sketcher.Constraint("Block", 11),
    Sketcher.Constraint("Block", 12),
    Sketcher.Constraint("Block", 14),
    Sketcher.Constraint("Block", 15),
    Sketcher.Constraint("Block", 17),
    Sketcher.Constraint("Block", 18),
    Sketcher.Constraint("Block", 22),
    Sketcher.Constraint("Block", 27),
    Sketcher.Constraint("Block", 28),
    Sketcher.Constraint("Block", 30),
    Sketcher.Constraint("Block", 31),
    Sketcher.Constraint("Block", 34),
    Sketcher.Constraint("Block", 35),
    Sketcher.Constraint("Coincident", 0, 1, 1, 1),
    Sketcher.Constraint("Coincident", 1, 2, 2, 2),
    Sketcher.Constraint("Coincident", 3, 1, 4, 1),
    Sketcher.Constraint("Coincident", 4, 2, 5, 2),
    Sketcher.Constraint("Coincident", 6, 1, 7, 1),
    Sketcher.Constraint("Coincident", 7, 2, 8, 2),
    Sketcher.Constraint("Coincident", 9, 1, 10, 1),
    Sketcher.Constraint("Coincident", 10, 2, 11, 2),
    Sketcher.Constraint("Coincident", 12, 1, 13, 1),
    Sketcher.Constraint("Coincident", 13, 2, 14, 2),
    Sketcher.Constraint("Coincident", 15, 1, 16, 1),
    Sketcher.Constraint("Coincident", 16, 2, 17, 2),
    Sketcher.Constraint("Coincident", 18, 1, 19, 1),
    Sketcher.Constraint("Coincident", 19, 2, 20, 1),
    Sketcher.Constraint("Coincident", 20, 2, 21, 1),
    Sketcher.Constraint("Coincident", 21, 2, 22, 2),
    Sketcher.Constraint("Coincident", 28, 1, 29, 1),
    Sketcher.Constraint("Coincident", 29, 2, 30, 2),
    Sketcher.Constraint("Coincident", 31, 1, 32, 1),
    Sketcher.Constraint("Coincident", 32, 2, 33, 1),
    Sketcher.Constraint("Coincident", 33, 2, 34, 2),
    Sketcher.Constraint("Coincident", 35, 1, 36, 1),
    Sketcher.Constraint("Coincident", 36, 2, 37, 1),
    Sketcher.Constraint("Coincident", 37, 2, 27, 2),
    Sketcher.Constraint("Horizontal", 20),
    Sketcher.Constraint("Horizontal", 24),
    Sketcher.Constraint("Horizontal", 26),
    Sketcher.Constraint("Horizontal", 32),
    Sketcher.Constraint("Vertical", 33),
    Sketcher.Constraint("Vertical", 36),
    Sketcher.Constraint("Horizontal", 37),
    Sketcher.Constraint("DistanceY", 25, 2, 24, 2, Q("8.75 mm")),
    Sketcher.Constraint("DistanceX", 20, 2, 20, 1, Q("7.30239 mm")),
    Sketcher.Constraint("DistanceX", 24, 1, 24, 2, Q("6.108111 mm")),
    Sketcher.Constraint("DistanceX", 29, 2, 20, 2, Q("5.078699 mm")),
    Sketcher.Constraint("Distance", 21, Q("4.478252 mm")),
    Sketcher.Constraint("Distance", 23, Q("9.27232 mm")),
    Sketcher.Constraint("DistanceX", 26, 2, 26, 1, Q("0.012063 mm")),
    Sketcher.Constraint("DistanceX", 23, 2, -1, 1, Q("4.927619 mm")),
    Sketcher.Constraint("DistanceY", 23, 2, 20, 2, Q("1.801471 mm")),
])
pocket4 = doc.addObject("PartDesign::Pocket", "Pocket003")
body.addObject(pocket4)
pocket4.Profile = sketch8
pocket4.Length = 1.5

doc.recompute()
